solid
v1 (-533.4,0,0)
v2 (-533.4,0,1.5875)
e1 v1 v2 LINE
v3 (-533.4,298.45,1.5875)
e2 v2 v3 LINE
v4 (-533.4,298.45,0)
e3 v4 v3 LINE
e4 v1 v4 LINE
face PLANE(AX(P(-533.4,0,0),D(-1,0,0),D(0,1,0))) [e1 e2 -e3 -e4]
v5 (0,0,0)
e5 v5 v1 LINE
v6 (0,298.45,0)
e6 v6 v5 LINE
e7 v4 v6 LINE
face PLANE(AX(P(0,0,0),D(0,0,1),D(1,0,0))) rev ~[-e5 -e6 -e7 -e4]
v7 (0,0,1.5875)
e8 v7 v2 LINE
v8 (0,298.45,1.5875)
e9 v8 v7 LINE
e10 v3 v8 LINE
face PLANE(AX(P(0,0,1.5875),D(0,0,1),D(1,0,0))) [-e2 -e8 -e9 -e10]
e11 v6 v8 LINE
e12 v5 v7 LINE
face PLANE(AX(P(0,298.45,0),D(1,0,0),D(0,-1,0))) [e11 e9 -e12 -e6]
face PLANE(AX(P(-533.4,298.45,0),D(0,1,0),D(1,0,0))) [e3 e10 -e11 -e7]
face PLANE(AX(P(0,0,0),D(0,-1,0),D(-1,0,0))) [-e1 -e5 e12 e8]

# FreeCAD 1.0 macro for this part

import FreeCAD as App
import Part
import Sketcher

V = App.Vector
Q = App.Units.Quantity


def add_polygon(sketch, points):
    """Adds a closed chain of lines whose ends are joined by coincident constraints."""
    first, n = sketch.GeometryCount, len(points)
    for a, b in zip(points, points[1:] + points[:1]):
        sketch.addGeometry(Part.LineSegment(App.Vector(*a, 0), App.Vector(*b, 0)), False)
    for i in range(n):
        sketch.addConstraint(Sketcher.Constraint("Coincident", first + i, 2, first + (i + 1) % n, 1))

doc = App.newDocument("Part")
body = doc.addObject("PartDesign::Body", "Body")

# Sketch on XY plane
sketch1 = body.newObject("Sketcher::SketchObject", "Sketch")
sketch1.AttachmentSupport = (doc.getObject("XY_Plane"), [""])
sketch1.MapMode = "FlatFace"
add_polygon(sketch1, [(-533, 0), (0, 0), (0, 298), (-533, 298)])  # lines 0-3
sketch1.addConstraint([
    Sketcher.Constraint("Horizontal", 0),
    Sketcher.Constraint("Vertical", 1),
    Sketcher.Constraint("Horizontal", 2),
    Sketcher.Constraint("Vertical", 3),
    Sketcher.Constraint("Coincident", 0, 2, -1, 1),
    Sketcher.Constraint("DistanceX", 0, 1, 0, 2, Q("21 in")),
    Sketcher.Constraint("DistanceY", 1, 1, 1, 2, Q("11.75 in")),
])
pad1 = body.newObject("PartDesign::Pad", "Pad")
pad1.Profile = sketch1
pad1.Length = Q("0.0625 in")

doc.recompute()
